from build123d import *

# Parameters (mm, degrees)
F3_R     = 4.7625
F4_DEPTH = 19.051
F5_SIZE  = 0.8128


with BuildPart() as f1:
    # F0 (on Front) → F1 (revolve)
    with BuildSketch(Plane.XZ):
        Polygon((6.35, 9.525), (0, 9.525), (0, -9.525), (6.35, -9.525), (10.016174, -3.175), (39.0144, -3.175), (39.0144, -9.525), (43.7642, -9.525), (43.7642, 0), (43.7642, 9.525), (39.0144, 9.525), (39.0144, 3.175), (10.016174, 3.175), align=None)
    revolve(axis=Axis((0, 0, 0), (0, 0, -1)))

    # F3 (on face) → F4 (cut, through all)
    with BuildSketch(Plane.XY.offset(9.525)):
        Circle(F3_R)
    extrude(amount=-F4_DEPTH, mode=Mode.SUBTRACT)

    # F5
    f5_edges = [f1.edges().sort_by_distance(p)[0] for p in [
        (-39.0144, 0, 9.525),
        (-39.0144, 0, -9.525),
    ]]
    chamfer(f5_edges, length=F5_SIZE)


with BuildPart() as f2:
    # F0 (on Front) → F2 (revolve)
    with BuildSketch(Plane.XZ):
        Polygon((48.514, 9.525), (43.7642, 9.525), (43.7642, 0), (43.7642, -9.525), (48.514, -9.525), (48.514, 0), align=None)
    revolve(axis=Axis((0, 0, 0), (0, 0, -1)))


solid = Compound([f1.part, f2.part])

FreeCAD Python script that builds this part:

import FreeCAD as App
import Part
import Sketcher
from FreeCAD import Vector
Q = App.Units.Quantity


def edges_at(feature, points):
    """Names of the edges that pass closest to the given points."""
    edges = feature.Shape.Edges
    near = lambda p: min(range(len(edges)), key=lambda i: edges[i].distToShape(Part.Vertex(*p))[0])
    return sorted({f"Edge{near(p) + 1}" for p in points})


def add_polygon(sketch, points):
    """Adds a closed chain of lines whose ends are joined by coincident constraints."""
    first, n = sketch.GeometryCount, len(points)
    for a, b in zip(points, points[1:] + points[:1]):
        sketch.addGeometry(Part.LineSegment(App.Vector(*a, 0), App.Vector(*b, 0)), False)
    for i in range(n):
        sketch.addConstraint(Sketcher.Constraint("Coincident", first + i, 2, first + (i + 1) % n, 1))

doc = App.newDocument("Part")
body = doc.addObject("PartDesign::Body", "Body")

sketch1 = body.newObject("Sketcher::SketchObject", "Sketch")
sketch1.AttachmentSupport = (doc.getObject("XZ_Plane"), [""])
sketch1.MapMode = "FlatFace"
add_polygon(sketch1, [(6.3, 9.5), (0, 9.5), (0, -9.5), (6.3, -9.5), (10, -3.2), (39, -3.2), (39, -9.5), (43.8, -9.5), (43.8, 9.5), (39, 9.5), (39, 3.2), (10, 3.2)])
sketch1.addConstraint([
    Sketcher.Constraint("Horizontal", 0),
    Sketcher.Constraint("Vertical", 1),
    Sketcher.Constraint("Horizontal", 2),
    Sketcher.Constraint("Horizontal", 4),
    Sketcher.Constraint("Vertical", 5),
    Sketcher.Constraint("Horizontal", 6),
    Sketcher.Constraint("Vertical", 7),
    Sketcher.Constraint("Horizontal", 8),
    Sketcher.Constraint("Vertical", 9),
    Sketcher.Constraint("Horizontal", 10),
    Sketcher.Constraint("Symmetric", 0, 2, 1, 2, -1, 1),
    Sketcher.Constraint("Symmetric", 5, 2, 8, 2, -1),
    Sketcher.Constraint("Symmetric", 3, 2, 10, 2, -1),
    Sketcher.Constraint("Horizontal", 2, 2, 5, 2),
    Sketcher.Constraint("Vertical", 2, 2, 11, 2),
    Sketcher.Constraint("Equal", 2, 5),
    Sketcher.Constraint("Angle", 3, Q("60.000001 deg")),
    Sketcher.Constraint("DistanceX", 0, 2, 0, 1, Q("0.25 in")),
    Sketcher.Constraint("DistanceY", 1, 2, 1, 1, Q("0.75 in")),
    Sketcher.Constraint("DistanceX", 6, 1, 6, 2, Q("0.187 in")),
    Sketcher.Constraint("DistanceX", -1, 1, 4, 2, Q("1.536 in")),
])
revolution = body.newObject("PartDesign::Revolution", "Revolution")
revolution.Profile = sketch1
revolution.ReferenceAxis = (sketch1, ["V_Axis"])
revolution.Angle = 360

sketch2 = body.newObject("Sketcher::SketchObject", "Sketch001")
sketch2.AttachmentSupport = (doc.getObject("XY_Plane"), [""])
sketch2.MapMode = "FlatFace"
sketch2.AttachmentOffset = App.Placement(Vector(0, 0, 0.375 * 25.4), App.Rotation())
sketch2.addGeometry(Part.Circle(Vector(0, 0, 0), Vector(0, 0, 1), 4.8), False)
sketch2.addConstraint([
    Sketcher.Constraint("Coincident", 0, 3, -1, 1),
    Sketcher.Constraint("Diameter", 0, Q("0.375 in")),
])
pocket1 = body.newObject("PartDesign::Pocket", "Pocket")
pocket1.Profile = sketch2
pocket1.Type = "ThroughAll"
doc.recompute()

chamfer = body.newObject("PartDesign::Chamfer", "Chamfer")
chamfer.Base = (pocket1, edges_at(pocket1, [(-39.014, 0, 9.525), (-39.014, 0, -9.525)]))
chamfer.Size = Q("0.032 in")
body2 = doc.addObject("PartDesign::Body", "Body001")

sketch3 = body2.newObject("Sketcher::SketchObject", "Sketch002")
sketch3.AttachmentSupport = (doc.getObject("XZ_Plane001"), [""])
sketch3.MapMode = "FlatFace"
add_polygon(sketch3, [(48.5, 9.5), (43.8, 9.5), (43.8, -9.5), (48.5, -9.5)])
sketch3.addConstraint([
    Sketcher.Constraint("Horizontal", 0),
    Sketcher.Constraint("Vertical", 1),
    Sketcher.Constraint("Horizontal", 2),
    Sketcher.Constraint("Vertical", 3),
    Sketcher.Constraint("DistanceY", 1, 2, 1, 1, Q("0.75 in")),
    Sketcher.Constraint("DistanceX", 0, 2, 0, 1, Q("0.187 in")),
    Sketcher.Constraint("DistanceX", -1, 1, 2, 2, Q("1.91 in")),
    Sketcher.Constraint("DistanceY", -1, 1, 0, 2, Q("0.375 in")),
])
revolution2 = body2.newObject("PartDesign::Revolution", "Revolution001")
revolution2.Profile = sketch3
revolution2.ReferenceAxis = (sketch3, ["V_Axis"])
revolution2.Angle = 360

doc.recompute()
